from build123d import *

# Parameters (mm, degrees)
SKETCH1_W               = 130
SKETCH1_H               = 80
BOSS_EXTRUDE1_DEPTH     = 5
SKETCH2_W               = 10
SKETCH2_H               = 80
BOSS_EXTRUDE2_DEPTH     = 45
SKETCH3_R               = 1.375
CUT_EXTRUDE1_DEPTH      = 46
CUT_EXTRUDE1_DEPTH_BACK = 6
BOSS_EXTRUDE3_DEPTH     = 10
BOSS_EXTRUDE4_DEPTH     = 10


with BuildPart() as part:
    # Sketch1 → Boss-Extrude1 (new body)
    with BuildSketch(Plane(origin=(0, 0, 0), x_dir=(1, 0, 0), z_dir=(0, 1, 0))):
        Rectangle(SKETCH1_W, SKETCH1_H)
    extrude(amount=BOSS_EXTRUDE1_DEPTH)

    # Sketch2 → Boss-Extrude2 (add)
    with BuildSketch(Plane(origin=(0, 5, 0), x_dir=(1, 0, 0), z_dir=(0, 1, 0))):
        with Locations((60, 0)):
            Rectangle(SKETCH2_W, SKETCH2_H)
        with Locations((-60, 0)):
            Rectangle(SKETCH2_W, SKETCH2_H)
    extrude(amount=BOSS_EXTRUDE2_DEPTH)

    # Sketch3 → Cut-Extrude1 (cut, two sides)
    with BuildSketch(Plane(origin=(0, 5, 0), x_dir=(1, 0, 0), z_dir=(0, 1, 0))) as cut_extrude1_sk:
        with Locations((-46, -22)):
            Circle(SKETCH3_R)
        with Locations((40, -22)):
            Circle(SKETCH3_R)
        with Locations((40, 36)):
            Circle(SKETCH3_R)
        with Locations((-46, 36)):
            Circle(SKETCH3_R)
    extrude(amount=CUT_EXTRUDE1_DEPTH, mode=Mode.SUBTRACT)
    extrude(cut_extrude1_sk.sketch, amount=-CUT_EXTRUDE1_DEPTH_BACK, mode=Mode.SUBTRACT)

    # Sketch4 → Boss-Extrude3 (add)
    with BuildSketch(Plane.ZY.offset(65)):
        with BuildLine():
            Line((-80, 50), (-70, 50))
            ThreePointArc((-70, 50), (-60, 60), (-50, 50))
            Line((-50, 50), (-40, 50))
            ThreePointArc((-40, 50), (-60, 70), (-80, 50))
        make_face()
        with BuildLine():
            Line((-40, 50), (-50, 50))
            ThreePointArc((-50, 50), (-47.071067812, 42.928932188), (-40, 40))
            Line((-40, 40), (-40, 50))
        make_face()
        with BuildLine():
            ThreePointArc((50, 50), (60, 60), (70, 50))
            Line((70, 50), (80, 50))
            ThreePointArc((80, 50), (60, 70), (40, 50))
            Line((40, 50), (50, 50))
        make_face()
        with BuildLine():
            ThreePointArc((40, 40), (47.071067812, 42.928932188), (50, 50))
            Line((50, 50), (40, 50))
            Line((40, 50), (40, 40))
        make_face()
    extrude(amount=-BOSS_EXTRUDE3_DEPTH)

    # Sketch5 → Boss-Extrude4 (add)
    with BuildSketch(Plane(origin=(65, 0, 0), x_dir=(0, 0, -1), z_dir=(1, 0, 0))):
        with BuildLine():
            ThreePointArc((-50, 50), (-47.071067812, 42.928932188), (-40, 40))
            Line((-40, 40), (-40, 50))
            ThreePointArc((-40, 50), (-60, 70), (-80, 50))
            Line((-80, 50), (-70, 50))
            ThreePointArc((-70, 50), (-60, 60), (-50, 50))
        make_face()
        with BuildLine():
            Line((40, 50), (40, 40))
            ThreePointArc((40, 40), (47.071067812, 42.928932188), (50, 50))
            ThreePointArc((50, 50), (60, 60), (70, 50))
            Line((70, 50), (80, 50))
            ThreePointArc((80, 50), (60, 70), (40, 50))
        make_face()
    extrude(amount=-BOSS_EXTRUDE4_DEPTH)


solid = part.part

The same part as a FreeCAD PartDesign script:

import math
import FreeCAD as App
import Part
import Sketcher

doc = App.newDocument("Part")
params = doc.addObject("Spreadsheet::Sheet", "Params")
for row, (alias, value) in enumerate([
    ("sketch1_width", "130 mm"),
    ("sketch1_height", "80 mm"),
    ("pad1_length", "5 mm"),
    ("sketch2_width", "10 mm"),
    ("sketch2_height", "80 mm"),
    ("pad2_length", "45 mm"),
    ("sketch3_diameter", "2.75 mm"),
    ("sketch4_radius", "10 mm"),
    ("pad3_length", "10 mm"),
    ("sketch5_radius", "10 mm"),
    ("pad4_length", "10 mm"),
], start=1):
    params.set(f"A{row}", alias)
    params.set(f"B{row}", "=" + value)
    params.setAlias(f"B{row}", alias)

body = doc.addObject("PartDesign::Body", "Body")

sketch1 = body.newObject("Sketcher::SketchObject", "Sketch")
sketch1.AttachmentSupport = (doc.getObject("XZ_Plane"), [""])
sketch1.MapMode = "FlatFace"
sketch1.addGeometry([
    Part.LineSegment(App.Vector(-65, -40, 0), App.Vector(-65, 40, 0)),
    Part.LineSegment(App.Vector(-65, 40, 0), App.Vector(65, 40, 0)),
    Part.LineSegment(App.Vector(65, 40, 0), App.Vector(65, -40, 0)),
    Part.LineSegment(App.Vector(65, -40, 0), App.Vector(-65, -40, 0)),
], False)
sketch1.addConstraint([
    Sketcher.Constraint("Coincident", 0, 2, 1, 1),
    Sketcher.Constraint("Coincident", 1, 2, 2, 1),
    Sketcher.Constraint("Coincident", 2, 2, 3, 1),
    Sketcher.Constraint("Coincident", 3, 2, 0, 1),
    Sketcher.Constraint("Vertical", 0),
    Sketcher.Constraint("Horizontal", 1),
    Sketcher.Constraint("Vertical", 2),
    Sketcher.Constraint("Horizontal", 3),
    Sketcher.Constraint("Symmetric", 0, 2, 2, 2, -1, 1),
    Sketcher.Constraint("DistanceX", 1, 1, 1, 2, 130.0),
    Sketcher.Constraint("DistanceY", 0, 1, 0, 2, 80.0),
])
sketch1.setExpression("Constraints[9]", "Params.sketch1_width")
sketch1.setExpression("Constraints[10]", "Params.sketch1_height")
pad1 = body.newObject("PartDesign::Pad", "Pad")
pad1.Profile = sketch1
pad1.setExpression("Length", "Params.pad1_length")
pad1.Reversed = True

sketch2 = body.newObject("Sketcher::SketchObject", "Sketch001")
sketch2.AttachmentSupport = (doc.getObject("XZ_Plane"), [""])
sketch2.MapMode = "FlatFace"
sketch2.AttachmentOffset = App.Placement(App.Vector(0, 0, -5), App.Rotation())
sketch2.addGeometry([
    Part.LineSegment(App.Vector(55, -40, 0), App.Vector(55, 40, 0)),
    Part.LineSegment(App.Vector(55, 40, 0), App.Vector(65, 40, 0)),
    Part.LineSegment(App.Vector(65, 40, 0), App.Vector(65, -40, 0)),
    Part.LineSegment(App.Vector(65, -40, 0), App.Vector(55, -40, 0)),
    Part.LineSegment(App.Vector(-65, -40, 0), App.Vector(-65, 40, 0)),
    Part.LineSegment(App.Vector(-65, 40, 0), App.Vector(-55, 40, 0)),
    Part.LineSegment(App.Vector(-55, 40, 0), App.Vector(-55, -40, 0)),
    Part.LineSegment(App.Vector(-55, -40, 0), App.Vector(-65, -40, 0)),
], False)
sketch2.addConstraint([
    Sketcher.Constraint("Coincident", 0, 2, 1, 1),
    Sketcher.Constraint("Coincident", 1, 2, 2, 1),
    Sketcher.Constraint("Coincident", 2, 2, 3, 1),
    Sketcher.Constraint("Coincident", 3, 2, 0, 1),
    Sketcher.Constraint("Coincident", 4, 2, 5, 1),
    Sketcher.Constraint("Coincident", 5, 2, 6, 1),
    Sketcher.Constraint("Coincident", 6, 2, 7, 1),
    Sketcher.Constraint("Coincident", 7, 2, 4, 1),
    Sketcher.Constraint("Vertical", 0),
    Sketcher.Constraint("Horizontal", 1),
    Sketcher.Constraint("Vertical", 2),
    Sketcher.Constraint("Horizontal", 3),
    Sketcher.Constraint("Vertical", 4),
    Sketcher.Constraint("Horizontal", 5),
    Sketcher.Constraint("Vertical", 6),
    Sketcher.Constraint("Horizontal", 7),
    Sketcher.Constraint("Symmetric", 2, 2, 4, 2, -1, 1),
    Sketcher.Constraint("Symmetric", 0, 2, 6, 2, -1, 1),
    Sketcher.Constraint("Horizontal", 1, 2, 4, 2),
    Sketcher.Constraint("DistanceX", 1, 1, 1, 2, 10.0),
    Sketcher.Constraint("DistanceY", 0, 1, 0, 2, 80.0),
    Sketcher.Constraint("DistanceX", -1, 1, 0, 2, 55.0),
])
sketch2.setExpression("Constraints[19]", "Params.sketch2_width")
sketch2.setExpression("Constraints[20]", "Params.sketch2_height")
pad2 = body.newObject("PartDesign::Pad", "Pad001")
pad2.Profile = sketch2
pad2.setExpression("Length", "Params.pad2_length")
pad2.Reversed = True

sketch3 = body.newObject("Sketcher::SketchObject", "Sketch002")
sketch3.AttachmentSupport = (doc.getObject("XZ_Plane"), [""])
sketch3.MapMode = "FlatFace"
sketch3.AttachmentOffset = App.Placement(App.Vector(0, 0, -5), App.Rotation())
sketch3.addGeometry([
    Part.Circle(App.Vector(-46, 22, 0), App.Vector(0, 0, 1), 1.4),
    Part.Circle(App.Vector(40, 22, 0), App.Vector(0, 0, 1), 1.4),
    Part.Circle(App.Vector(40, -36, 0), App.Vector(0, 0, 1), 1.4),
    Part.Circle(App.Vector(-46, -36, 0), App.Vector(0, 0, 1), 1.4),
], False)
sketch3.addConstraint([
    Sketcher.Constraint("Equal", 0, 1),
    Sketcher.Constraint("Equal", 1, 2),
    Sketcher.Constraint("Equal", 2, 3),
    Sketcher.Constraint("Horizontal", 0, 3, 1, 3),
    Sketcher.Constraint("Horizontal", 2, 3, 3, 3),
    Sketcher.Constraint("Vertical", 1, 3, 2, 3),
    Sketcher.Constraint("Vertical", 0, 3, 3, 3),
    Sketcher.Constraint("Diameter", 0, 2.75),
    Sketcher.Constraint("DistanceX", 0, 3, -1, 1, 46.0),
    Sketcher.Constraint("DistanceY", -1, 1, 0, 3, 22.0),
    Sketcher.Constraint("DistanceX", -1, 1, 1, 3, 40.0),
    Sketcher.Constraint("DistanceY", 2, 3, -1, 1, 36.0),
])
sketch3.setExpression("Constraints[7]", "Params.sketch3_diameter")
pocket1 = body.newObject("PartDesign::Pocket", "Pocket")
pocket1.Profile = sketch3
pocket1.Type = "ThroughAll"
pocket1.Midplane = True

sketch4 = body.newObject("Sketcher::SketchObject", "Sketch003")
sketch4.AttachmentSupport = (doc.getObject("YZ_Plane"), [""])
sketch4.MapMode = "FlatFace"
sketch4.AttachmentOffset = App.Placement(App.Vector(0, 0, -65), App.Rotation())
sketch4.addGeometry([
    Part.LineSegment(App.Vector(50, -80, 0), App.Vector(50, -70, 0)),
    Part.ArcOfCircle(Part.Circle(App.Vector(50, -60, 0), App.Vector(0, 0, 1), 10), math.radians(-90), math.radians(90)),
    Part.ArcOfCircle(Part.Circle(App.Vector(50, -40, 0), App.Vector(0, 0, 1), 10), math.radians(180), math.radians(270)),
    Part.LineSegment(App.Vector(40, -40, 0), App.Vector(50, -40, 0)),
    Part.ArcOfCircle(Part.Circle(App.Vector(50, -60, 0), App.Vector(0, 0, 1), 20), math.radians(-90), math.radians(90)),
    Part.ArcOfCircle(Part.Circle(App.Vector(50, 60, 0), App.Vector(0, 0, 1), 10), math.radians(-90), math.radians(90)),
    Part.LineSegment(App.Vector(50, 70, 0), App.Vector(50, 80, 0)),
    Part.ArcOfCircle(Part.Circle(App.Vector(50, 60, 0), App.Vector(0, 0, 1), 20), math.radians(-90), math.radians(90)),
    Part.LineSegment(App.Vector(50, 40, 0), App.Vector(40, 40, 0)),
    Part.ArcOfCircle(Part.Circle(App.Vector(50, 40, 0), App.Vector(0, 0, 1), 10), math.radians(90), math.radians(180)),
], False)
sketch4.addConstraint([
    Sketcher.Constraint("Coincident", 0, 2, 1, 1),
    Sketcher.Constraint("Tangent", 1, 2, 2, 2),
    Sketcher.Constraint("Coincident", 2, 1, 3, 1),
    Sketcher.Constraint("Tangent", 3, 2, 4, 2),
    Sketcher.Constraint("Coincident", 4, 1, 0, 1),
    Sketcher.Constraint("Coincident", 5, 2, 6, 1),
    Sketcher.Constraint("Coincident", 6, 2, 7, 2),
    Sketcher.Constraint("Tangent", 7, 1, 8, 1),
    Sketcher.Constraint("Coincident", 8, 2, 9, 2),
    Sketcher.Constraint("Tangent", 9, 1, 5, 1),
    Sketcher.Constraint("Vertical", 0),
    Sketcher.Constraint("Horizontal", 3),
    Sketcher.Constraint("Vertical", 6),
    Sketcher.Constraint("Horizontal", 8),
    Sketcher.Constraint("Coincident", 4, 3, 1, 3),
    Sketcher.Constraint("Coincident", 7, 3, 5, 3),
    Sketcher.Constraint("Coincident", 3, 2, 2, 3),
    Sketcher.Constraint("Coincident", 7, 1, 9, 3),
    Sketcher.Constraint("Equal", 1, 2),
    Sketcher.Constraint("Equal", 2, 5),
    Sketcher.Constraint("Equal", 4, 7),
    Sketcher.Constraint("Symmetric", 1, 3, 5, 3, -1),
    Sketcher.Constraint("Vertical", 9, 3, 0, 2),
    Sketcher.Constraint("Vertical", 4, 1, 5, 2),
    Sketcher.Constraint("Radius", 1, 10.0),
    Sketcher.Constraint("DistanceX", -1, 1, 1, 3, 50.0),
    Sketcher.Constraint("DistanceY", 1, 3, -1, 1, 60.0),
])
sketch4.setExpression("Constraints[24]", "Params.sketch4_radius")
pad3 = body.newObject("PartDesign::Pad", "Pad002")
pad3.Profile = sketch4
pad3.setExpression("Length", "Params.pad3_length")

sketch5 = body.newObject("Sketcher::SketchObject", "Sketch004")
sketch5.AttachmentSupport = (doc.getObject("YZ_Plane"), [""])
sketch5.MapMode = "FlatFace"
sketch5.AttachmentOffset = App.Placement(App.Vector(0, 0, 65), App.Rotation())
sketch5.addGeometry([
    Part.ArcOfCircle(Part.Circle(App.Vector(50, 40, 0), App.Vector(0, 0, 1), 10), math.radians(90), math.radians(180)),
    Part.LineSegment(App.Vector(40, 40, 0), App.Vector(50, 40, 0)),
    Part.ArcOfCircle(Part.Circle(App.Vector(50, 60, 0), App.Vector(0, 0, 1), 20), math.radians(-90), math.radians(90)),
    Part.LineSegment(App.Vector(50, 80, 0), App.Vector(50, 70, 0)),
    Part.ArcOfCircle(Part.Circle(App.Vector(50, 60, 0), App.Vector(0, 0, 1), 10), math.radians(-90), math.radians(90)),
    Part.LineSegment(App.Vector(50, -40, 0), App.Vector(40, -40, 0)),
    Part.ArcOfCircle(Part.Circle(App.Vector(50, -40, 0), App.Vector(0, 0, 1), 10), math.radians(180), math.radians(270)),
    Part.ArcOfCircle(Part.Circle(App.Vector(50, -60, 0), App.Vector(0, 0, 1), 10), math.radians(-90), math.radians(90)),
    Part.LineSegment(App.Vector(50, -70, 0), App.Vector(50, -80, 0)),
    Part.ArcOfCircle(Part.Circle(App.Vector(50, -60, 0), App.Vector(0, 0, 1), 20), math.radians(-90), math.radians(90)),
], False)
sketch5.addConstraint([
    Sketcher.Constraint("Coincident", 0, 2, 1, 1),
    Sketcher.Constraint("Tangent", 1, 2, 2, 1),
    Sketcher.Constraint("Coincident", 2, 2, 3, 1),
    Sketcher.Constraint("Coincident", 3, 2, 4, 2),
    Sketcher.Constraint("Tangent", 4, 1, 0, 1),
    Sketcher.Constraint("Coincident", 5, 2, 6, 1),
    Sketcher.Constraint("Tangent", 6, 2, 7, 2),
    Sketcher.Constraint("Coincident", 7, 1, 8, 1),
    Sketcher.Constraint("Coincident", 8, 2, 9, 1),
    Sketcher.Constraint("Tangent", 9, 2, 5, 1),
    Sketcher.Constraint("Horizontal", 1),
    Sketcher.Constraint("Vertical", 3),
    Sketcher.Constraint("Horizontal", 5),
    Sketcher.Constraint("Vertical", 8),
    Sketcher.Constraint("Coincident", 4, 3, 2, 3),
    Sketcher.Constraint("Coincident", 9, 3, 7, 3),
    Sketcher.Constraint("Coincident", 1, 2, 0, 3),
    Sketcher.Constraint("Coincident", 9, 2, 6, 3),
    Sketcher.Constraint("Equal", 0, 4),
    Sketcher.Constraint("Equal", 4, 6),
    Sketcher.Constraint("Equal", 6, 7),
    Sketcher.Constraint("Symmetric", 0, 3, 6, 3, -1),
    Sketcher.Constraint("Vertical", 1, 2, 2, 2),
    Sketcher.Constraint("Vertical", 6, 2, 7, 1),
    Sketcher.Constraint("Radius", 0, 10.0),
    Sketcher.Constraint("DistanceX", -1, 1, 0, 3, 50.0),
    Sketcher.Constraint("DistanceY", -1, 1, 0, 3, 40.0),
])
sketch5.setExpression("Constraints[24]", "Params.sketch5_radius")
pad4 = body.newObject("PartDesign::Pad", "Pad003")
pad4.Profile = sketch5
pad4.setExpression("Length", "Params.pad4_length")
pad4.Reversed = True

doc.recompute()
